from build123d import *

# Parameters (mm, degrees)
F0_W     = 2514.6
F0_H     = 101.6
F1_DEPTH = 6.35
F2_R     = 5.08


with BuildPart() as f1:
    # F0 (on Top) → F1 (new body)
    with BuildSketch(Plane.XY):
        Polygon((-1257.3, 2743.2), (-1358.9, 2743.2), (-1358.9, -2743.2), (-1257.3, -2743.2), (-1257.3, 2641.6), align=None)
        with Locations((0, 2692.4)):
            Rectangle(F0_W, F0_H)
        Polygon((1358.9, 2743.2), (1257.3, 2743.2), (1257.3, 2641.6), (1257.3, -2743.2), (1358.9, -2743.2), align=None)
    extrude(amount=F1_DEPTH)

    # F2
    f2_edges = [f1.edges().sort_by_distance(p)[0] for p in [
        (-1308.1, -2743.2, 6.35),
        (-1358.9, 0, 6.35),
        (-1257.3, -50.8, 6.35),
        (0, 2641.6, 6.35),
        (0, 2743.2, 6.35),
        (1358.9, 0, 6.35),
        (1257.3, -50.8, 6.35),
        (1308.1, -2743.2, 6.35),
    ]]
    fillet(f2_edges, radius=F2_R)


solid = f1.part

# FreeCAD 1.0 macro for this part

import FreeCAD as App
import Part
import Sketcher

V = App.Vector
Q = App.Units.Quantity


def edges_at(feature, points):
    """Names of the edges that pass closest to the given points."""
    edges = feature.Shape.Edges
    near = lambda p: min(range(len(edges)), key=lambda i: edges[i].distToShape(Part.Vertex(*p))[0])
    return sorted({f"Edge{near(p) + 1}" for p in points})

doc = App.newDocument("Part")
body = doc.addObject("PartDesign::Body", "Body")

sketch1 = body.newObject("Sketcher::SketchObject", "Sketch")
sketch1.AttachmentSupport = (doc.getObject("XY_Plane"), [""])
sketch1.MapMode = "FlatFace"
sketch1.addGeometry([
    Part.LineSegment(V(-1358.9, 2743.2, 0), V(-1358.9, -2743.2, 0)),
    Part.LineSegment(V(-1358.9, -2743.2, 0), V(-1257.3, -2743.2, 0)),
    Part.LineSegment(V(-1257.3, -2743.2, 0), V(-1257.3, 2641.6, 0)),
    Part.LineSegment(V(-1257.3, 2641.6, 0), V(1257.3, 2641.6, 0)),
    Part.LineSegment(V(1257.3, 2641.6, 0), V(1257.3, -2743.2, 0)),
    Part.LineSegment(V(1257.3, -2743.2, 0), V(1358.9, -2743.2, 0)),
    Part.LineSegment(V(1358.9, -2743.2, 0), V(1358.9, 2743.2, 0)),
    Part.LineSegment(V(1358.9, 2743.2, 0), V(-1358.9, 2743.2, 0)),
], False)
sketch1.addConstraint([
    Sketcher.Constraint("Coincident", 0, 2, 1, 1),
    Sketcher.Constraint("Coincident", 1, 2, 2, 1),
    Sketcher.Constraint("Coincident", 2, 2, 3, 1),
    Sketcher.Constraint("Coincident", 3, 2, 4, 1),
    Sketcher.Constraint("Coincident", 4, 2, 5, 1),
    Sketcher.Constraint("Coincident", 5, 2, 6, 1),
    Sketcher.Constraint("Coincident", 6, 2, 7, 1),
    Sketcher.Constraint("Coincident", 7, 2, 0, 1),
    Sketcher.Constraint("Vertical", 0),
    Sketcher.Constraint("Horizontal", 1),
    Sketcher.Constraint("Vertical", 2),
    Sketcher.Constraint("Horizontal", 3),
    Sketcher.Constraint("Vertical", 4),
    Sketcher.Constraint("Horizontal", 5),
    Sketcher.Constraint("Vertical", 6),
    Sketcher.Constraint("Horizontal", 7),
    Sketcher.Constraint("Symmetric", 0, 2, 6, 2, -1, 1),
    Sketcher.Constraint("Symmetric", 1, 2, 4, 2, -2),
    Sketcher.Constraint("DistanceX", 1, 1, 1, 2, Q("4 in")),
    Sketcher.Constraint("DistanceX", 3, 1, 3, 2, Q("99 in")),
    Sketcher.Constraint("DistanceY", 0, 2, 0, 1, Q("216 in")),
    Sketcher.Constraint("DistanceY", 2, 1, 2, 2, Q("212 in")),
])
pad1 = body.newObject("PartDesign::Pad", "Pad")
pad1.Profile = sketch1
pad1.Length = Q("0.25 in")
doc.recompute()

fillet = body.newObject("PartDesign::Fillet", "Fillet")
fillet.Base = (pad1, edges_at(pad1, [
    (-1308.1, -2743.2, 6.35),
    (-1358.9, 0, 6.35),
    (-1257.3, -50.8, 6.35),
    (0, 2641.6, 6.35),
    (0, 2743.2, 6.35),
    (1358.9, 0, 6.35),
    (1257.3, -50.8, 6.35),
    (1308.1, -2743.2, 6.35),
]))
fillet.Radius = Q("0.2 in")

doc.recompute()
